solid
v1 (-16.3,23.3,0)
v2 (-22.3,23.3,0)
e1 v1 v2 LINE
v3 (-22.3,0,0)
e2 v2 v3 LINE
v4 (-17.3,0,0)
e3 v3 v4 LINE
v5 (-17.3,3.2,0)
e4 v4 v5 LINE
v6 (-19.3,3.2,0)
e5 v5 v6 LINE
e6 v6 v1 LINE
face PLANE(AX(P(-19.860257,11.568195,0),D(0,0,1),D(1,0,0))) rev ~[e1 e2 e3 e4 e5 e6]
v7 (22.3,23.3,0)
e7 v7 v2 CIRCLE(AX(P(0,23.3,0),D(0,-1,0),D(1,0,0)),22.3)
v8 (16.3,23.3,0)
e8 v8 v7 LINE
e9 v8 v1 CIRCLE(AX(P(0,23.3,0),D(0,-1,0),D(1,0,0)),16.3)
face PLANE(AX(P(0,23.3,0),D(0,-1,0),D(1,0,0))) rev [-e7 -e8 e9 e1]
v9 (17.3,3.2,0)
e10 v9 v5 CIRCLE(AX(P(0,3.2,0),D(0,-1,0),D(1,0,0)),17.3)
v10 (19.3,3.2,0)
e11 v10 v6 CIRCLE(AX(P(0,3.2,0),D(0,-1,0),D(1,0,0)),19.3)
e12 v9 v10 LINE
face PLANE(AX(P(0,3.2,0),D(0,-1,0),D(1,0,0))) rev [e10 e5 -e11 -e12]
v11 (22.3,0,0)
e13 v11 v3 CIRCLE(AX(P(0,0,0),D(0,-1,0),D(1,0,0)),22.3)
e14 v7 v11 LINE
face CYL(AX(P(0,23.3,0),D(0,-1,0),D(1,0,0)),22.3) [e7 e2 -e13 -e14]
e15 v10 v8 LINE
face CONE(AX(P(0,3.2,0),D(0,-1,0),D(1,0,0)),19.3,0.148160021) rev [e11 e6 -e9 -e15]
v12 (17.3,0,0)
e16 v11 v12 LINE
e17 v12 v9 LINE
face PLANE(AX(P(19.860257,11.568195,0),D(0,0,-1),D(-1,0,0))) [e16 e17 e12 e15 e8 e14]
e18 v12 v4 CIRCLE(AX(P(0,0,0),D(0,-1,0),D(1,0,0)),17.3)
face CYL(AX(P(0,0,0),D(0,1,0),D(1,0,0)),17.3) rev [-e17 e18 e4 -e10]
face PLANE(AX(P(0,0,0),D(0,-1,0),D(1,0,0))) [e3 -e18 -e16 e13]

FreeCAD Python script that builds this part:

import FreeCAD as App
import Part
import Sketcher

doc = App.newDocument("Part")
body = doc.addObject("PartDesign::Body", "Body")

sketch1 = doc.addObject("Sketcher::SketchObject", "Sketch")
body.addObject(sketch1)
sketch1.AttachmentSupport = (doc.XY_Plane, [""])
sketch1.MapMode = "FlatFace"
sketch1.addGeometry([
    Part.LineSegment(App.Vector(17.3, 3.2, 0), App.Vector(17.3, 0, 0)),
    Part.LineSegment(App.Vector(17.3, 0, 0), App.Vector(22.3, 0, 0)),
    Part.LineSegment(App.Vector(22.3, 0, 0), App.Vector(22.3, 23.3, 0)),
    Part.LineSegment(App.Vector(22.3, 23.3, 0), App.Vector(16.3, 23.3, 0)),
    Part.LineSegment(App.Vector(16.3, 23.3, 0), App.Vector(19.3, 3.2, 0)),
    Part.LineSegment(App.Vector(19.3, 3.2, 0), App.Vector(17.3, 3.2, 0)),
], False)
sketch1.addConstraint([
    Sketcher.Constraint("Coincident", 0, 2, 1, 1),
    Sketcher.Constraint("Coincident", 1, 2, 2, 1),
    Sketcher.Constraint("Coincident", 2, 2, 3, 1),
    Sketcher.Constraint("Coincident", 3, 2, 4, 1),
    Sketcher.Constraint("Coincident", 4, 2, 5, 1),
    Sketcher.Constraint("Coincident", 5, 2, 0, 1),
    Sketcher.Constraint("Vertical", 0),
    Sketcher.Constraint("Horizontal", 1),
    Sketcher.Constraint("Vertical", 2),
    Sketcher.Constraint("Horizontal", 3),
    Sketcher.Constraint("Horizontal", 5),
    Sketcher.Constraint("PointOnObject", 0, 2, -1),
    Sketcher.Constraint("DistanceX", 1, 1, 1, 2, 5.0),
    Sketcher.Constraint("DistanceX", 3, 2, 3, 1, 6.0),
    Sketcher.Constraint("DistanceX", 5, 2, 5, 1, 2.0),
    Sketcher.Constraint("DistanceY", 0, 2, 0, 1, 3.2),
    Sketcher.Constraint("DistanceY", 2, 1, 2, 2, 23.3),
    Sketcher.Constraint("DistanceX", -1, 1, 0, 2, 17.3),
])
revolution = doc.addObject("PartDesign::Revolution", "Revolution")
body.addObject(revolution)
revolution.Profile = sketch1
revolution.ReferenceAxis = (sketch1, ["V_Axis"])
revolution.Angle = 180
revolution.Reversed = True

doc.recompute()
